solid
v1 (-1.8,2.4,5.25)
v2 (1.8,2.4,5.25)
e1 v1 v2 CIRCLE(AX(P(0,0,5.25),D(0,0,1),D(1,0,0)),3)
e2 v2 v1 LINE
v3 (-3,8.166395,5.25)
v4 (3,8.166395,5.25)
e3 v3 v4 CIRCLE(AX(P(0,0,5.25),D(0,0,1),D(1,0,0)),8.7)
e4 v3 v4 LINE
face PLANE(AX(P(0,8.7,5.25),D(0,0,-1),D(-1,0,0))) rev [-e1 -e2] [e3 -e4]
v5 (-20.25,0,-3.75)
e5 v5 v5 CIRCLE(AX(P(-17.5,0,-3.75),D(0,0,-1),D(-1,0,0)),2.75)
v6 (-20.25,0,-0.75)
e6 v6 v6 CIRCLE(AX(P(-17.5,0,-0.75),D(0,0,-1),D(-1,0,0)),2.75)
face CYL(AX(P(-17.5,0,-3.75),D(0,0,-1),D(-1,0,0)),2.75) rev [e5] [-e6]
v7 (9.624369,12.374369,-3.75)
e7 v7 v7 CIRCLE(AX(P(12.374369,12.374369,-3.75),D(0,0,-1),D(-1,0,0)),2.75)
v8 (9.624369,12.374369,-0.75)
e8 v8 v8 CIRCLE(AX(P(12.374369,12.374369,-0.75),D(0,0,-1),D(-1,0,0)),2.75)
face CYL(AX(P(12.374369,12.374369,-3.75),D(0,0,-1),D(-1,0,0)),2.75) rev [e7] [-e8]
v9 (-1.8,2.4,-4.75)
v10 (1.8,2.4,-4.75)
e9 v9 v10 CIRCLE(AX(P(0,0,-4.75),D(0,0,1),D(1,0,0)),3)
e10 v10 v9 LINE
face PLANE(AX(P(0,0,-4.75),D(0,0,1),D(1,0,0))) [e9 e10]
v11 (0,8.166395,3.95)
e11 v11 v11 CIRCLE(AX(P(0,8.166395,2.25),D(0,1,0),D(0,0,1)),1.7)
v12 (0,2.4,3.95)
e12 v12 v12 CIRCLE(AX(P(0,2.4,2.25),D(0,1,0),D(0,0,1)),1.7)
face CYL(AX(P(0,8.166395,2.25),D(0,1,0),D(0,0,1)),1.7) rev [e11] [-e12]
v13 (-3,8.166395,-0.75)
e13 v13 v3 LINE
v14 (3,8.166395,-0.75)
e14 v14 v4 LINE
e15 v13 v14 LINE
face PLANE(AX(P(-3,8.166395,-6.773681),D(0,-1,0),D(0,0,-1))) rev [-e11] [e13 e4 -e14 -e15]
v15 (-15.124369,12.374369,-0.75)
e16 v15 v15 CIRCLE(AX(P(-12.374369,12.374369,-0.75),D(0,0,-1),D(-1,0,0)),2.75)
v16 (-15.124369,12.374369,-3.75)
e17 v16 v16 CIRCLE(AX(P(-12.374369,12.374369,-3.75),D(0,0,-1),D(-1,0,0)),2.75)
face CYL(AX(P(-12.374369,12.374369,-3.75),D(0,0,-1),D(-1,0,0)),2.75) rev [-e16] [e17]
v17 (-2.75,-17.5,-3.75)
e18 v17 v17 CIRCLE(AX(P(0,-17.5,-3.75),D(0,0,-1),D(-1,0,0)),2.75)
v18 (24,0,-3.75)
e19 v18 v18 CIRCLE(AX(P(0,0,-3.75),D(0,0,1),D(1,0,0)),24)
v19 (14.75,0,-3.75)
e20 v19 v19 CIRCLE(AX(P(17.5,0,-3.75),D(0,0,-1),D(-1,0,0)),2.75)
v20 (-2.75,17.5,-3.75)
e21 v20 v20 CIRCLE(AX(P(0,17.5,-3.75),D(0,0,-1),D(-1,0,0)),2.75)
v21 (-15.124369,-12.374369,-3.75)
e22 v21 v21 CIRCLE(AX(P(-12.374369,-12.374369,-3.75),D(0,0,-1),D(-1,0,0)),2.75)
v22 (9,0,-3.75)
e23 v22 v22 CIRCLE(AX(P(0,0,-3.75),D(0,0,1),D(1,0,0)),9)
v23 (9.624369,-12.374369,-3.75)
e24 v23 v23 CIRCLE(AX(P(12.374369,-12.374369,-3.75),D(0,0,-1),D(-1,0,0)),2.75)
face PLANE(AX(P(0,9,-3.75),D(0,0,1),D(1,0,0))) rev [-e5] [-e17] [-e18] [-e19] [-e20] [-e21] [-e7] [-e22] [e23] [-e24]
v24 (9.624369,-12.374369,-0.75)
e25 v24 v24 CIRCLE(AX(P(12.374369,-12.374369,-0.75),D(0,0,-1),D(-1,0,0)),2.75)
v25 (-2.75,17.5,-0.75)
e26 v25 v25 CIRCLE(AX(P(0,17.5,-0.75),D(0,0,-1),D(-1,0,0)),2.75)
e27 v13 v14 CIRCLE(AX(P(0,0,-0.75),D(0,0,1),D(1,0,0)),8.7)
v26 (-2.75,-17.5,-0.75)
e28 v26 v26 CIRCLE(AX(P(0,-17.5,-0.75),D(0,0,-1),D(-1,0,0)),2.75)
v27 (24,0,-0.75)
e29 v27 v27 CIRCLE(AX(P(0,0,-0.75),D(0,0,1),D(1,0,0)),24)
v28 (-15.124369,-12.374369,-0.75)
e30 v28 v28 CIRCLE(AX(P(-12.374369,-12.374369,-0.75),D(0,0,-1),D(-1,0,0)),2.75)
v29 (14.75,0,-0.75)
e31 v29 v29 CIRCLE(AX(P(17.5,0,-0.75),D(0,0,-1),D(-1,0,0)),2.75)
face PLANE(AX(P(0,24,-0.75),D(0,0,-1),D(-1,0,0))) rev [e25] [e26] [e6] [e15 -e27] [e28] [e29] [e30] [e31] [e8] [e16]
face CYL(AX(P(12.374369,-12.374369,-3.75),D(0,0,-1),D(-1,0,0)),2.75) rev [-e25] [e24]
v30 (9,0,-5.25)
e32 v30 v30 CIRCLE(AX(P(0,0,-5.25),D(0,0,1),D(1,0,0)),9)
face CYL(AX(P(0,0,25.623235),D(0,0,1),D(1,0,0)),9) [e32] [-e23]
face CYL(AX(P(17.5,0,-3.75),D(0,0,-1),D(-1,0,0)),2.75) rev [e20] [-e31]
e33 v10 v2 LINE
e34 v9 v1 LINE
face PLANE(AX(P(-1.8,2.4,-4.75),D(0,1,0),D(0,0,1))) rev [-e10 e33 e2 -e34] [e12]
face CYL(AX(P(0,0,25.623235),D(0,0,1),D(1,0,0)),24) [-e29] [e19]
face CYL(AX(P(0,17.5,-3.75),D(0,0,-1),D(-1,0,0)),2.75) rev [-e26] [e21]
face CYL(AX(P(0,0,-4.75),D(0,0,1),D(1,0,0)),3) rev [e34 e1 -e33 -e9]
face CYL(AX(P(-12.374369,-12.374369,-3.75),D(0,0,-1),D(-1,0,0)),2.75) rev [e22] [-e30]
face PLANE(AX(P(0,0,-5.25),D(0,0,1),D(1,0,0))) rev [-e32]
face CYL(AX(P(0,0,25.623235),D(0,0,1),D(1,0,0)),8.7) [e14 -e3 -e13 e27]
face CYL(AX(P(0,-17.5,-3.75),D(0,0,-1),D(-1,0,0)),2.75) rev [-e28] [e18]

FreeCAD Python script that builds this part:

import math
import FreeCAD as App
import Part
import Sketcher
from FreeCAD import Vector
Q = App.Units.Quantity


def add_polygon(sketch, points):
    """Adds a closed chain of lines whose ends are joined by coincident constraints."""
    first, n = sketch.GeometryCount, len(points)
    for a, b in zip(points, points[1:] + points[:1]):
        sketch.addGeometry(Part.LineSegment(App.Vector(*a, 0), App.Vector(*b, 0)), False)
    for i in range(n):
        sketch.addConstraint(Sketcher.Constraint("Coincident", first + i, 2, first + (i + 1) % n, 1))

doc = App.newDocument("Part")
body = doc.addObject("PartDesign::Body", "Body")

# Sketch on YZ plane
sketch1 = body.newObject("Sketcher::SketchObject", "Sketch")
sketch1.AttachmentSupport = (doc.getObject("YZ_Plane"), [""])
sketch1.MapMode = "FlatFace"
add_polygon(sketch1, [(0, 5.25), (0, -5.25), (9, -5.25), (9, -3.75), (24, -3.75), (24, -0.75), (8.7, -0.75), (8.7, 5.25)])  # lines 0-7
sketch1.addConstraint(Sketcher.Constraint("Vertical", 0))
sketch1.addConstraint(Sketcher.Constraint("Horizontal", 1))
sketch1.addConstraint(Sketcher.Constraint("Vertical", 2))
sketch1.addConstraint(Sketcher.Constraint("Horizontal", 3))
sketch1.addConstraint(Sketcher.Constraint("Vertical", 4))
sketch1.addConstraint(Sketcher.Constraint("Horizontal", 5))
sketch1.addConstraint(Sketcher.Constraint("Vertical", 6))
sketch1.addConstraint(Sketcher.Constraint("Horizontal", 7))
sketch1.addConstraint(Sketcher.Constraint("Symmetric", 0, 2, 7, 2, -1, 1))
sketch1.addConstraint(Sketcher.Constraint("DistanceX", 1, 1, 1, 2, Q("9 mm")))
sketch1.addConstraint(Sketcher.Constraint("DistanceX", 3, 1, 3, 2, Q("15 mm")))
sketch1.addConstraint(Sketcher.Constraint("DistanceY", 4, 1, 4, 2, Q("3 mm")))
sketch1.addConstraint(Sketcher.Constraint("DistanceY", 6, 1, 6, 2, Q("6 mm")))
sketch1.addConstraint(Sketcher.Constraint("DistanceX", 5, 2, 5, 1, Q("15.3 mm")))
sketch1.addConstraint(Sketcher.Constraint("DistanceY", 0, 2, 0, 1, Q("10.5 mm")))
revolution = body.newObject("PartDesign::Revolution", "Revolution")
revolution.Profile = sketch1
revolution.ReferenceAxis = (sketch1, ["V_Axis"])
revolution.Angle = 360

# Sketch on XY plane
sketch2 = body.newObject("Sketcher::SketchObject", "Sketch001")
sketch2.AttachmentSupport = (doc.getObject("XY_Plane"), [""])
sketch2.MapMode = "FlatFace"
sketch2.AttachmentOffset = App.Placement(Vector(0, 0, 5.25), App.Rotation())
sketch2.addGeometry(Part.LineSegment(Vector(1.8, 2.4, 0), Vector(-1.8, 2.4, 0)), False)
sketch2.addGeometry(Part.ArcOfCircle(Part.Circle(Vector(0, 0, 0), Vector(0, 0, 1), 3), math.radians(126.869898), math.radians(413.130102)), False)
sketch2.addConstraint(Sketcher.Constraint("Coincident", 0, 1, 1, 2))
sketch2.addConstraint(Sketcher.Constraint("Coincident", 1, 1, 0, 2))
sketch2.addConstraint(Sketcher.Constraint("Horizontal", 0))
sketch2.addConstraint(Sketcher.Constraint("Coincident", 1, 3, -1, 1))
sketch2.addConstraint(Sketcher.Constraint("Radius", 1, Q("3 mm")))
sketch2.addConstraint(Sketcher.Constraint("DistanceX", 0, 2, 0, 1, Q("3.6 mm")))
pocket1 = body.newObject("PartDesign::Pocket", "Pocket")
pocket1.Profile = sketch2
pocket1.Length = 10

# Sketch on XY plane
sketch3 = body.newObject("Sketcher::SketchObject", "Sketch002")
sketch3.AttachmentSupport = (doc.getObject("XY_Plane"), [""])
sketch3.MapMode = "FlatFace"
sketch3.AttachmentOffset = App.Placement(Vector(0, 0, -3.75), App.Rotation())
sketch3.addGeometry(Part.Circle(Vector(0, 17.5, 0), Vector(0, 0, 1), 2.75), False)
sketch3.addGeometry(Part.Circle(Vector(-12.374369, 12.374369, 0), Vector(0, 0, 1), 2.75), False)
sketch3.addGeometry(Part.Circle(Vector(-17.5, 0, 0), Vector(0, 0, 1), 2.75), False)
sketch3.addGeometry(Part.Circle(Vector(-12.374369, -12.374369, 0), Vector(0, 0, 1), 2.75), False)
sketch3.addGeometry(Part.Circle(Vector(0, -17.5, 0), Vector(0, 0, 1), 2.75), False)
sketch3.addGeometry(Part.Circle(Vector(12.374369, -12.374369, 0), Vector(0, 0, 1), 2.75), False)
sketch3.addGeometry(Part.Circle(Vector(17.5, 0, 0), Vector(0, 0, 1), 2.75), False)
sketch3.addGeometry(Part.Circle(Vector(12.374369, 12.374369, 0), Vector(0, 0, 1), 2.75), False)
sketch3.addConstraint(Sketcher.Constraint("Equal", 0, 1))
sketch3.addConstraint(Sketcher.Constraint("Equal", 1, 2))
sketch3.addConstraint(Sketcher.Constraint("Equal", 2, 3))
sketch3.addConstraint(Sketcher.Constraint("Equal", 3, 4))
sketch3.addConstraint(Sketcher.Constraint("Equal", 4, 5))
sketch3.addConstraint(Sketcher.Constraint("Equal", 5, 6))
sketch3.addConstraint(Sketcher.Constraint("Equal", 6, 7))
sketch3.addConstraint(Sketcher.Constraint("Symmetric", 0, 3, 4, 3, -1, 1))
sketch3.addConstraint(Sketcher.Constraint("Symmetric", 1, 3, 5, 3, -1, 1))
sketch3.addConstraint(Sketcher.Constraint("Symmetric", 2, 3, 6, 3, -1, 1))
sketch3.addConstraint(Sketcher.Constraint("Symmetric", 3, 3, 7, 3, -1, 1))
sketch3.addConstraint(Sketcher.Constraint("Symmetric", 3, 3, 5, 3, -2))
sketch3.addConstraint(Sketcher.Constraint("PointOnObject", 0, 3, -2))
sketch3.addConstraint(Sketcher.Constraint("PointOnObject", 2, 3, -1))
sketch3.addConstraint(Sketcher.Constraint("Diameter", 0, Q("5.5 mm")))
sketch3.addConstraint(Sketcher.Constraint("DistanceY", 4, 3, 0, 3, Q("35 mm")))
sketch3.addConstraint(Sketcher.Constraint("DistanceX", 2, 3, -1, 1, Q("17.5 mm")))
sketch3.addConstraint(Sketcher.Constraint("DistanceX", 1, 3, -1, 1, Q("12.374369 mm")))
sketch3.addConstraint(Sketcher.Constraint("DistanceY", -1, 1, 1, 3, Q("12.374369 mm")))
doc.recompute()
hole = body.newObject("PartDesign::Hole", "Hole")
hole.Profile = sketch3
hole.ThreadType = "None"
hole.Diameter = 5.5
hole.DepthType = "ThroughAll"
hole.Reversed = True

# Sketch on XY plane
sketch4 = body.newObject("Sketcher::SketchObject", "Sketch003")
sketch4.AttachmentSupport = (doc.getObject("XY_Plane"), [""])
sketch4.MapMode = "FlatFace"
sketch4.AttachmentOffset = App.Placement(Vector(0, 0, 5.25), App.Rotation())
sketch4.addGeometry(Part.LineSegment(Vector(-3, 8.166395, 0), Vector(3, 8.166395, 0)), False)
sketch4.addGeometry(Part.ArcOfCircle(Part.Circle(Vector(0, 0, 0), Vector(0, 0, 1), 8.7), math.radians(69.828729), math.radians(110.171271)), False)
sketch4.addConstraint(Sketcher.Constraint("Coincident", 0, 1, 1, 2))
sketch4.addConstraint(Sketcher.Constraint("Coincident", 1, 1, 0, 2))
sketch4.addConstraint(Sketcher.Constraint("Horizontal", 0))
sketch4.addConstraint(Sketcher.Constraint("Coincident", 1, 3, -1, 1))
sketch4.addConstraint(Sketcher.Constraint("Radius", 1, Q("8.7 mm")))
sketch4.addConstraint(Sketcher.Constraint("DistanceX", 0, 1, 0, 2, Q("6 mm")))
pocket2 = body.newObject("PartDesign::Pocket", "Pocket001")
pocket2.Profile = sketch4
pocket2.Length = 6

# Sketch on XZ plane
sketch5 = body.newObject("Sketcher::SketchObject", "Sketch004")
sketch5.AttachmentSupport = (doc.getObject("XZ_Plane"), [""])
sketch5.MapMode = "FlatFace"
sketch5.AttachmentOffset = App.Placement(Vector(0, 0, -8.166395), App.Rotation())
sketch5.addGeometry(Part.Circle(Vector(0, 2.25, 0), Vector(0, 0, 1), 1.7), False)
sketch5.addConstraint(Sketcher.Constraint("PointOnObject", 0, 3, -2))
sketch5.addConstraint(Sketcher.Constraint("Diameter", 0, Q("3.4 mm")))
sketch5.addConstraint(Sketcher.Constraint("DistanceY", -1, 1, 0, 3, Q("2.25 mm")))
doc.recompute()
hole2 = body.newObject("PartDesign::Hole", "Hole001")
hole2.Profile = sketch5
hole2.ThreadType = "None"
hole2.Diameter = 3.4
hole2.DepthType = "Dimension"
hole2.Depth = 5.766395
hole2.DrillPoint = "Flat"
hole2.Reversed = True

doc.recompute()
